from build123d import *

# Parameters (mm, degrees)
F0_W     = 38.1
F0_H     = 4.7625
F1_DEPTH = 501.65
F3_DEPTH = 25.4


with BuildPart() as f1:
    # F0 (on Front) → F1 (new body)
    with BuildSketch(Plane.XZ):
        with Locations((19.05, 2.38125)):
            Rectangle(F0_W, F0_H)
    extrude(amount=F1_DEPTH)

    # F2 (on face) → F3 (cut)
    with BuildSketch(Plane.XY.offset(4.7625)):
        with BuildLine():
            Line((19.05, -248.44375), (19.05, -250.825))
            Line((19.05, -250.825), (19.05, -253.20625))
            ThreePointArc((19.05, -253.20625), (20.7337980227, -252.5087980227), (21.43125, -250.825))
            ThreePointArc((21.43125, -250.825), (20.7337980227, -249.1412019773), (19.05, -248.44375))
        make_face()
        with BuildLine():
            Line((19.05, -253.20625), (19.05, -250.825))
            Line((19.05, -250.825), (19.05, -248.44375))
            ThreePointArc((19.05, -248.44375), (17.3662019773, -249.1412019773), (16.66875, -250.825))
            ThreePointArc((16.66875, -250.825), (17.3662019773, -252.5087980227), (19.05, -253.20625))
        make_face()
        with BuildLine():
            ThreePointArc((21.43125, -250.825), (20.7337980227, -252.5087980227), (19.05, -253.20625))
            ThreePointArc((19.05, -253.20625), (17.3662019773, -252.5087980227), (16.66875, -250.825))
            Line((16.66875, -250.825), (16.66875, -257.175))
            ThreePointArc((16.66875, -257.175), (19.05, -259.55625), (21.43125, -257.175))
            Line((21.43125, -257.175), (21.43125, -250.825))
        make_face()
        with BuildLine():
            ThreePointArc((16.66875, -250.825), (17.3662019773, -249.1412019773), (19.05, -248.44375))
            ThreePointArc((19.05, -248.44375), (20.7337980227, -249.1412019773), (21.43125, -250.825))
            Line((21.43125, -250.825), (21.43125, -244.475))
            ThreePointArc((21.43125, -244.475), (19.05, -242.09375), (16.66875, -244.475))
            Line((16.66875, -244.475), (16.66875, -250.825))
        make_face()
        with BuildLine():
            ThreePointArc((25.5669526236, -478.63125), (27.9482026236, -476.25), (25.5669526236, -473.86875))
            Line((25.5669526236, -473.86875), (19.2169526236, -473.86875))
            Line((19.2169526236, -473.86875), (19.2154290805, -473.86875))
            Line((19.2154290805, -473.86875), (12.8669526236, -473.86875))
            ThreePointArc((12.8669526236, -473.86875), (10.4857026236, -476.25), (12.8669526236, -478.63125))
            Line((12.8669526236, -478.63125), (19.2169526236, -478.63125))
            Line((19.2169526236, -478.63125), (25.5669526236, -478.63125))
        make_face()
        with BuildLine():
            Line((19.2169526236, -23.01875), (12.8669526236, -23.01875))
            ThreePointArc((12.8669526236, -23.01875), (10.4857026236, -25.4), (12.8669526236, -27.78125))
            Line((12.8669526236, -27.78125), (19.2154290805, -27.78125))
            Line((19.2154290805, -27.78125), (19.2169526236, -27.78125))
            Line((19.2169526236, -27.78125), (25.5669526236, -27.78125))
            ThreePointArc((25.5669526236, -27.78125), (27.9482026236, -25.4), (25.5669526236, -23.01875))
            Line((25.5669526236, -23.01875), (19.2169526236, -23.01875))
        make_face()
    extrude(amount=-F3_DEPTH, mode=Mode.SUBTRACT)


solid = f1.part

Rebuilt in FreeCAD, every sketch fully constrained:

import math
import FreeCAD as App
import Part
import Sketcher

V = App.Vector
Q = App.Units.Quantity

doc = App.newDocument("Part")
body = doc.addObject("PartDesign::Body", "Body")

sketch1 = body.newObject("Sketcher::SketchObject", "Sketch")
sketch1.AttachmentSupport = (doc.getObject("XZ_Plane"), [""])
sketch1.MapMode = "FlatFace"
sketch1.addGeometry([
    Part.LineSegment(V(0, 4.8, 0), V(0, 0, 0)),
    Part.LineSegment(V(0, 0, 0), V(38.1, 0, 0)),
    Part.LineSegment(V(38.1, 0, 0), V(38.1, 4.8, 0)),
    Part.LineSegment(V(38.1, 4.8, 0), V(0, 4.8, 0)),
], False)
sketch1.addConstraint([
    Sketcher.Constraint("Coincident", 0, 2, 1, 1),
    Sketcher.Constraint("Coincident", 1, 2, 2, 1),
    Sketcher.Constraint("Coincident", 2, 2, 3, 1),
    Sketcher.Constraint("Coincident", 3, 2, 0, 1),
    Sketcher.Constraint("Vertical", 0),
    Sketcher.Constraint("Horizontal", 1),
    Sketcher.Constraint("Vertical", 2),
    Sketcher.Constraint("Horizontal", 3),
    Sketcher.Constraint("Coincident", 0, 2, -1, 1),
    Sketcher.Constraint("DistanceX", 1, 1, 1, 2, Q("1.5 in")),
    Sketcher.Constraint("DistanceY", 0, 2, 0, 1, Q("0.1875 in")),
])
pad1 = body.newObject("PartDesign::Pad", "Pad")
pad1.Profile = sketch1
pad1.Length = Q("19.75 in")

sketch2 = body.newObject("Sketcher::SketchObject", "Sketch001")
sketch2.AttachmentSupport = (doc.getObject("XY_Plane"), [""])
sketch2.MapMode = "FlatFace"
sketch2.AttachmentOffset = App.Placement(V(0, 0, 0.1875 * 25.4), App.Rotation())
sketch2.addGeometry([
    Part.ArcOfCircle(Part.Circle(V(19.1, -257.2, 0), V(0, 0, 1), 2.4), math.radians(180), math.radians(360)),
    Part.LineSegment(V(21.4, -257.2, 0), V(21.4, -244.5, 0)),
    Part.ArcOfCircle(Part.Circle(V(19.1, -244.5, 0), V(0, 0, 1), 2.4), math.radians(0), math.radians(180)),
    Part.LineSegment(V(16.7, -244.5, 0), V(16.7, -257.2, 0)),
    Part.ArcOfCircle(Part.Circle(V(25.6, -476.2, 0), V(0, 0, 1), 2.4), math.radians(-90), math.radians(90)),
    Part.LineSegment(V(25.6, -473.9, 0), V(12.9, -473.9, 0)),
    Part.ArcOfCircle(Part.Circle(V(12.9, -476.2, 0), V(0, 0, 1), 2.4), math.radians(90), math.radians(270)),
    Part.LineSegment(V(12.9, -478.6, 0), V(25.6, -478.6, 0)),
    Part.ArcOfCircle(Part.Circle(V(12.9, -25.4, 0), V(0, 0, 1), 2.4), math.radians(90), math.radians(270)),
    Part.LineSegment(V(12.9, -27.8, 0), V(25.6, -27.8, 0)),
    Part.ArcOfCircle(Part.Circle(V(25.6, -25.4, 0), V(0, 0, 1), 2.4), math.radians(-90), math.radians(90)),
    Part.LineSegment(V(25.6, -23, 0), V(12.9, -23, 0)),
], False)
sketch2.addConstraint([
    Sketcher.Constraint("Tangent", 0, 2, 1, 1),
    Sketcher.Constraint("Tangent", 1, 2, 2, 1),
    Sketcher.Constraint("Tangent", 2, 2, 3, 1),
    Sketcher.Constraint("Tangent", 3, 2, 0, 1),
    Sketcher.Constraint("Tangent", 4, 2, 5, 1),
    Sketcher.Constraint("Tangent", 5, 2, 6, 1),
    Sketcher.Constraint("Tangent", 6, 2, 7, 1),
    Sketcher.Constraint("Tangent", 7, 2, 4, 1),
    Sketcher.Constraint("Tangent", 8, 2, 9, 1),
    Sketcher.Constraint("Tangent", 9, 2, 10, 1),
    Sketcher.Constraint("Tangent", 10, 2, 11, 1),
    Sketcher.Constraint("Tangent", 11, 2, 8, 1),
    Sketcher.Constraint("Vertical", 1),
    Sketcher.Constraint("Vertical", 3),
    Sketcher.Constraint("Horizontal", 5),
    Sketcher.Constraint("Horizontal", 7),
    Sketcher.Constraint("Horizontal", 9),
    Sketcher.Constraint("Horizontal", 11),
    Sketcher.Constraint("Equal", 2, 4),
    Sketcher.Constraint("Equal", 6, 8),
    Sketcher.Constraint("Vertical", 6, 3, 8, 3),
    Sketcher.Constraint("Vertical", 4, 3, 10, 3),
    Sketcher.Constraint("Equal", 11, 1),
    Sketcher.Constraint("DistanceX", 5, 2, 5, 1, Q("0.5 in")),
    Sketcher.Constraint("DistanceY", 8, 3, -1, 1, Q("1 in")),
    Sketcher.Constraint("Radius", 0, Q("0.09375 in")),
    Sketcher.Constraint("DistanceX", -1, 1, 0, 3, Q("0.75 in")),
    Sketcher.Constraint("DistanceY", 4, 3, -1, 1, Q("18.75 in")),
    Sketcher.Constraint("DistanceY", 0, 3, -1, 1, Q("10.125 in")),
    Sketcher.Constraint("DistanceX", -1, 1, 4, 3, Q("25.566953 mm")),
])
pocket1 = body.newObject("PartDesign::Pocket", "Pocket")
pocket1.Profile = sketch2
pocket1.Length = Q("1 in")

doc.recompute()
